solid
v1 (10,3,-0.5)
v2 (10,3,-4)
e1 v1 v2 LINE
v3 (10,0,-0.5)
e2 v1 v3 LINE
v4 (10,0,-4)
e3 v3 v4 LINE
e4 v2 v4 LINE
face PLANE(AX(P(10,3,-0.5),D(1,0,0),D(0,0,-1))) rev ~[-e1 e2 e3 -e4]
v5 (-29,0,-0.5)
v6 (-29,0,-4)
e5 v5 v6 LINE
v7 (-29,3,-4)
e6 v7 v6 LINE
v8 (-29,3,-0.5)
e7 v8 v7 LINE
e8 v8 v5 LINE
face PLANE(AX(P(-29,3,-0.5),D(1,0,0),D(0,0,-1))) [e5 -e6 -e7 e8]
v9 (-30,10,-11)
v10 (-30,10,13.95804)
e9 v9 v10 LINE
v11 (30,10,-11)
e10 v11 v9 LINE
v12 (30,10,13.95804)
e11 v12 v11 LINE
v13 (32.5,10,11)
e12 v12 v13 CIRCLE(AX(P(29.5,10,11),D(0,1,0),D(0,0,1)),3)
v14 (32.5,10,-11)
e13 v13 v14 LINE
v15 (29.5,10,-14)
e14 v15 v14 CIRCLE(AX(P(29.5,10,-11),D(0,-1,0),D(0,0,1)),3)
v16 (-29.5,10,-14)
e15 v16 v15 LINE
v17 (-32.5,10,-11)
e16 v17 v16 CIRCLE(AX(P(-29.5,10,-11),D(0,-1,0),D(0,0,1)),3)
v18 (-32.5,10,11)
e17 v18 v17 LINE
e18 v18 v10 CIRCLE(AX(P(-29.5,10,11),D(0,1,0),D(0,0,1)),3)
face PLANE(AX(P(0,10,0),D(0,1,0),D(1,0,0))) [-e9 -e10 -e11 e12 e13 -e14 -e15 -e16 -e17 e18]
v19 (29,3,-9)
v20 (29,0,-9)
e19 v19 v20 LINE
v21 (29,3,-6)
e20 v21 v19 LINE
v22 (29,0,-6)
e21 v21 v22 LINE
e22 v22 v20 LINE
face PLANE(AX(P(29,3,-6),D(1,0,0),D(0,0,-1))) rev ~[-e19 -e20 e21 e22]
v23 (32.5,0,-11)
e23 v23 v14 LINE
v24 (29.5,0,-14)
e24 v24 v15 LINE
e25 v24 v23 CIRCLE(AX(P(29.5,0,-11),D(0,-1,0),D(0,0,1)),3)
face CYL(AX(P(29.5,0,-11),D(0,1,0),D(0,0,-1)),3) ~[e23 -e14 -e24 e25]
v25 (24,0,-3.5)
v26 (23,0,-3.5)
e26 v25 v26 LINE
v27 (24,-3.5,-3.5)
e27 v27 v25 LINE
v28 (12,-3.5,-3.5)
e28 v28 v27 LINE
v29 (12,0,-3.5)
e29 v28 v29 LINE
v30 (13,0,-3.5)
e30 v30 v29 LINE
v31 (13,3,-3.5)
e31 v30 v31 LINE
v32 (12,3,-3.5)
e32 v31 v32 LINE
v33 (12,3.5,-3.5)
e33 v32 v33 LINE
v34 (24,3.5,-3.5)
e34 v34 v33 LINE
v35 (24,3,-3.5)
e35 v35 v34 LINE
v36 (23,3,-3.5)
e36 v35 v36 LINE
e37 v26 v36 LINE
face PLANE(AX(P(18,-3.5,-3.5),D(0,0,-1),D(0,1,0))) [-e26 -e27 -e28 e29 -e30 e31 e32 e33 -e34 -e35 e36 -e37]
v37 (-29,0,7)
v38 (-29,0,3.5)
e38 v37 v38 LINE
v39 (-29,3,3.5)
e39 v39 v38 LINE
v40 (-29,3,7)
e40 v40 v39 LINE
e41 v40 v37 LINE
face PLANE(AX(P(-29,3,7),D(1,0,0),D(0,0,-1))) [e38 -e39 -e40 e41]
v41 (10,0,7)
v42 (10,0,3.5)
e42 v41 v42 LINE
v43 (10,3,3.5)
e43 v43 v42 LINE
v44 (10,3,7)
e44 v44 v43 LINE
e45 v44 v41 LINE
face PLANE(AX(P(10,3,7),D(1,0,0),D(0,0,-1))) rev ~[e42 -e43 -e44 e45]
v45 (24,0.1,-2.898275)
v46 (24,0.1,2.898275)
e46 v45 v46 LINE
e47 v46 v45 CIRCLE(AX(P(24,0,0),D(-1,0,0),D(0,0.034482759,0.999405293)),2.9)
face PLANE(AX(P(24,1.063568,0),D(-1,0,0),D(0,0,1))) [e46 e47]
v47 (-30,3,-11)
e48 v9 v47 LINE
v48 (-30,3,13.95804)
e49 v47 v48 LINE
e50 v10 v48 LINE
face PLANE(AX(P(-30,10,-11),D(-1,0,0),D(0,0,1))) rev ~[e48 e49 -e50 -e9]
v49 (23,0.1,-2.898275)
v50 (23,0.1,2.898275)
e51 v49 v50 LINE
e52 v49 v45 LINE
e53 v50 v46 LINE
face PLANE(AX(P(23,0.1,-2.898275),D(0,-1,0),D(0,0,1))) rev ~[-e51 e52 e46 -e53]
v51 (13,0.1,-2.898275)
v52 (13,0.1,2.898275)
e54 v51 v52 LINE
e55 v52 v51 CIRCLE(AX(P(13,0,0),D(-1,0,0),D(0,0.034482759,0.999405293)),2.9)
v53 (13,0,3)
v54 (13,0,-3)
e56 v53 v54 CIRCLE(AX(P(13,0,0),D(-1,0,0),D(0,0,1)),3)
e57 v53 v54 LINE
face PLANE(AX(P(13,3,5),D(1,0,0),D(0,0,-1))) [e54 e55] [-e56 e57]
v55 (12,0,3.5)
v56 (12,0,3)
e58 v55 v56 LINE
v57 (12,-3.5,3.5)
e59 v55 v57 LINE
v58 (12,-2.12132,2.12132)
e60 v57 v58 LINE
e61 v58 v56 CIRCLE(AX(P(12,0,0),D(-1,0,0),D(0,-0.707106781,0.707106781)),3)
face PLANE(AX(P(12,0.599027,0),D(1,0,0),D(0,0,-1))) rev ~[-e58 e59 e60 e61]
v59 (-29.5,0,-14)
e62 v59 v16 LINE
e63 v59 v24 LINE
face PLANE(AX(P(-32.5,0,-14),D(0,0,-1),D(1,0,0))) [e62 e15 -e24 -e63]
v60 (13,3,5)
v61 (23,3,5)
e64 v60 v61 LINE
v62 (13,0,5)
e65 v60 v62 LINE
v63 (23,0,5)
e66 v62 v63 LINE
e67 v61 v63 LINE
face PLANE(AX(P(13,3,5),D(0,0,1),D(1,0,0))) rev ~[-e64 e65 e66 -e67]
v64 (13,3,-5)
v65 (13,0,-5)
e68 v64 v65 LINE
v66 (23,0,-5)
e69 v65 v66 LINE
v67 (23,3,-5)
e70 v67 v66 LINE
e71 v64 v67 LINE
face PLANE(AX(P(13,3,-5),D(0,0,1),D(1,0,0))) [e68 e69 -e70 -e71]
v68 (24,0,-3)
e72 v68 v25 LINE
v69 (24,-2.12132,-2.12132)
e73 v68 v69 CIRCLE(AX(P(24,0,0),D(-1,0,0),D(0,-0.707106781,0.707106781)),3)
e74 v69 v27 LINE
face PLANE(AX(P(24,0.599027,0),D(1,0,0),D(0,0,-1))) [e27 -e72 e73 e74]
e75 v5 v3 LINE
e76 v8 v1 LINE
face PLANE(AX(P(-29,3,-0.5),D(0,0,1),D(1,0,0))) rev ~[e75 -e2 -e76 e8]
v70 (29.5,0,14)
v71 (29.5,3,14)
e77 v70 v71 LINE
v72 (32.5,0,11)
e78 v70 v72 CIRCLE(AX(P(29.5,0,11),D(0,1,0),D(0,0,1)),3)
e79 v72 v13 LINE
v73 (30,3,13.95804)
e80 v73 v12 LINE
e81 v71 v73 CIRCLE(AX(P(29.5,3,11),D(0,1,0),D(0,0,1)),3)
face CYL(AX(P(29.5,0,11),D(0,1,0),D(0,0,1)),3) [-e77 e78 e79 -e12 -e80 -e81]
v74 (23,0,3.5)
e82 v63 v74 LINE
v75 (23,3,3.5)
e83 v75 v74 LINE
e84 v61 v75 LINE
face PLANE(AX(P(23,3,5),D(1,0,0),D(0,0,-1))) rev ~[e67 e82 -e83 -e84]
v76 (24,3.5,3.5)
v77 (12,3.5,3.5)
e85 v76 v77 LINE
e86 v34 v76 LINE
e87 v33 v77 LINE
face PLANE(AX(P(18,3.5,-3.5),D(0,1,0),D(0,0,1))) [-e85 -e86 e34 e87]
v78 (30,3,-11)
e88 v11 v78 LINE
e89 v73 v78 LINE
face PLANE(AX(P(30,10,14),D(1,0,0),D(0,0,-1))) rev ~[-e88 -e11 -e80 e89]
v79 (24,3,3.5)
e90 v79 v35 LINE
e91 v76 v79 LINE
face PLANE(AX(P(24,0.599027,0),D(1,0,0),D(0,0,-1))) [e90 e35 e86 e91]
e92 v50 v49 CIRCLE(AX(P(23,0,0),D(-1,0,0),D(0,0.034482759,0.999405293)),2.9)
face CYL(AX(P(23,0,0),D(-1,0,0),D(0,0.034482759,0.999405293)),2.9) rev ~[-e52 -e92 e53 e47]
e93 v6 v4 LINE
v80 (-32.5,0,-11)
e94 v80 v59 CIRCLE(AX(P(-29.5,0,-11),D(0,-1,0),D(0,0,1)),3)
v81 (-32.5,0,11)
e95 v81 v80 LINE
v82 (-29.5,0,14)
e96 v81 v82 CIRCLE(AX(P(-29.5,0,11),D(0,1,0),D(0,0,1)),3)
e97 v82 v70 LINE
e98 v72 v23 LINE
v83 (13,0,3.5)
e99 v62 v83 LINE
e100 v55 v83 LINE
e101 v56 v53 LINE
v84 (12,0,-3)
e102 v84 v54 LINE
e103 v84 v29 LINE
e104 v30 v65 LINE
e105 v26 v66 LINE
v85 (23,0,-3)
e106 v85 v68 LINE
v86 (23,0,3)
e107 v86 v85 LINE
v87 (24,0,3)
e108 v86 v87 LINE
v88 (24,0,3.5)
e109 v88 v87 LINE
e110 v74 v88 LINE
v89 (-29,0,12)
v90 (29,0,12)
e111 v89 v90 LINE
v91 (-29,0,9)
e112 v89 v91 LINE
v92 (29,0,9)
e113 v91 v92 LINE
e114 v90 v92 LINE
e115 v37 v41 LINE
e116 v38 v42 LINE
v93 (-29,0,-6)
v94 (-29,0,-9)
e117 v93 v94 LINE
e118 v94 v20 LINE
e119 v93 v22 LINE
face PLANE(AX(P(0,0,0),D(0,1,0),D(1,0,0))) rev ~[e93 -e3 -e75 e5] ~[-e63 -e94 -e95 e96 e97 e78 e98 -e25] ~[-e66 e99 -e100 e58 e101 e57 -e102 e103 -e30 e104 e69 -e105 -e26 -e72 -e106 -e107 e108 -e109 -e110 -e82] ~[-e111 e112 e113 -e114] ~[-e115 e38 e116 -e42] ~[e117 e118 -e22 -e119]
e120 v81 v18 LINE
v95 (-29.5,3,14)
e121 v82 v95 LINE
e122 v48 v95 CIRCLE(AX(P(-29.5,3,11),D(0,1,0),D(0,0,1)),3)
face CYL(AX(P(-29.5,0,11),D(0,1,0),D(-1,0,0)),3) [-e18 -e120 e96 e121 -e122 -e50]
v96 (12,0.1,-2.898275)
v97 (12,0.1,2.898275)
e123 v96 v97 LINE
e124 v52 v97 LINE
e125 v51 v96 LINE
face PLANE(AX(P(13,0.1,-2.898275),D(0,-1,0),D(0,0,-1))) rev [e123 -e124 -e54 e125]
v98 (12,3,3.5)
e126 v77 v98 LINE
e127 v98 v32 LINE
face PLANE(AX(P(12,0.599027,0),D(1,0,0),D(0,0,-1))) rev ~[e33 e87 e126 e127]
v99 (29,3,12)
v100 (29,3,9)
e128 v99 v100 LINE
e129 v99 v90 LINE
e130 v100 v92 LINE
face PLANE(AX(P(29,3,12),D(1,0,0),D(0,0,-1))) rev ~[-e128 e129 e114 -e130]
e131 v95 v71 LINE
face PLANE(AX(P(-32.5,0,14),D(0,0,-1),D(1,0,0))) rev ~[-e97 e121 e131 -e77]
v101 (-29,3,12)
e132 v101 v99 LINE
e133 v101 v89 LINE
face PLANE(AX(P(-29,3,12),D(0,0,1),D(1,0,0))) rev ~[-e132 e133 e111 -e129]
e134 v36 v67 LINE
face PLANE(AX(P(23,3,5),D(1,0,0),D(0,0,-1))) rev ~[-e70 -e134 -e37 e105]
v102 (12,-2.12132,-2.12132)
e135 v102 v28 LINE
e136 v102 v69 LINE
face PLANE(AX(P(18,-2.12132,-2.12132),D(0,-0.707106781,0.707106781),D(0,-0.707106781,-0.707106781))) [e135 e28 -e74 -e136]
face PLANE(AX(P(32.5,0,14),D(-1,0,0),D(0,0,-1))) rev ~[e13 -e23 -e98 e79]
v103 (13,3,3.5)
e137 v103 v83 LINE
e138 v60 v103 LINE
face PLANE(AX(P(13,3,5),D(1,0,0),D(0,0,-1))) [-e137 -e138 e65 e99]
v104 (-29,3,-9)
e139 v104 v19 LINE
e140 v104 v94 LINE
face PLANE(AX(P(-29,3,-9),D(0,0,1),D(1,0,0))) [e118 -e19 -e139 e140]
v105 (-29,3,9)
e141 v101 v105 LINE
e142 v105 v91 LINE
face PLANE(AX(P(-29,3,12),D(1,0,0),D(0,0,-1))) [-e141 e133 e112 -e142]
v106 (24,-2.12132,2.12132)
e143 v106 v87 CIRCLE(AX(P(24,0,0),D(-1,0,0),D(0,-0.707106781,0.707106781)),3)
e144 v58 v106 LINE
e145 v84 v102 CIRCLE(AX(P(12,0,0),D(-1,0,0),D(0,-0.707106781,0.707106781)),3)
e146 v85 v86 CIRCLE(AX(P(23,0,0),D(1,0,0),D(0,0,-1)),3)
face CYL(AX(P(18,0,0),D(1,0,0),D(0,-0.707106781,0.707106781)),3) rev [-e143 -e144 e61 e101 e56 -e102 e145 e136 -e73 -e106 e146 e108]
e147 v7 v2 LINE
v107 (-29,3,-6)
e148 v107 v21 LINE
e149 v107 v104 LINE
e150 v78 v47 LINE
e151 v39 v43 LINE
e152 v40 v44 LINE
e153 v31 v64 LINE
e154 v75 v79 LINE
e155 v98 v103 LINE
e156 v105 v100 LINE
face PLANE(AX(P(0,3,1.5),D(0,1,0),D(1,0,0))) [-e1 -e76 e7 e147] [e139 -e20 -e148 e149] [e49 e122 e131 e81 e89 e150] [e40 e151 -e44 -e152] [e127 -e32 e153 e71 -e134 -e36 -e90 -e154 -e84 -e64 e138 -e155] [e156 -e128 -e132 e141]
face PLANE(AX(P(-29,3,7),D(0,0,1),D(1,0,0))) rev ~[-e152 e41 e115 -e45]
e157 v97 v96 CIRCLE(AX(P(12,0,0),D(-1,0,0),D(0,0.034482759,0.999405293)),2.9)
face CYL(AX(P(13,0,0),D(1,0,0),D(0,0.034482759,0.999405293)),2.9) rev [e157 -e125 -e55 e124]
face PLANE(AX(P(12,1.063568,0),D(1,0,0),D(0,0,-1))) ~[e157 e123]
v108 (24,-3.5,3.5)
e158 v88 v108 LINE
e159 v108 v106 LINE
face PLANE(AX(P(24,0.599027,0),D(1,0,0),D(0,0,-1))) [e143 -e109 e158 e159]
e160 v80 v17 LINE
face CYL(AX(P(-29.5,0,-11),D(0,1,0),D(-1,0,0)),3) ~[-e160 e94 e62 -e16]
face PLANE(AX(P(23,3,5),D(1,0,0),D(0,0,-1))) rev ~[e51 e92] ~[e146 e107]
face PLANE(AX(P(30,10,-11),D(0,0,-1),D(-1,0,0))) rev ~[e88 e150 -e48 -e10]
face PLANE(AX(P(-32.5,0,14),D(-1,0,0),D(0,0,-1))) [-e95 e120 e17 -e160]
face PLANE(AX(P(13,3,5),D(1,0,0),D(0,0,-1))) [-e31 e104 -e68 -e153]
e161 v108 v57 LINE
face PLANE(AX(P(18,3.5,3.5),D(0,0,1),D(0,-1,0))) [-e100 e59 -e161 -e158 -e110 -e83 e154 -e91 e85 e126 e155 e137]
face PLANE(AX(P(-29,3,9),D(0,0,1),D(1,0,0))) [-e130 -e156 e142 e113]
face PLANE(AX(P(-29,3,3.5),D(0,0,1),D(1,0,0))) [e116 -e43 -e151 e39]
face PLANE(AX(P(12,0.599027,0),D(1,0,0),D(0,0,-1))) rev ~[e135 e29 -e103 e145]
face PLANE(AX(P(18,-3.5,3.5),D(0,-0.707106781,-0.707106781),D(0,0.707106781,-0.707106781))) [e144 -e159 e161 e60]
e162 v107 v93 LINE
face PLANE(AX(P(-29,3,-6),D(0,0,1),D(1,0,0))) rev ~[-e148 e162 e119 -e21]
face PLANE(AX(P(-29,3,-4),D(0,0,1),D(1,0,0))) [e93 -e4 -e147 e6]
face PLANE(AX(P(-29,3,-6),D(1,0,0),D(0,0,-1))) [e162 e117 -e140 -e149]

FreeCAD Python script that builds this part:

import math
import FreeCAD as App
import Part
import Sketcher
from FreeCAD import Vector


def edges_at(feature, points):
    """Names of the edges that pass closest to the given points."""
    edges = feature.Shape.Edges
    near = lambda p: min(range(len(edges)), key=lambda i: edges[i].distToShape(Part.Vertex(*p))[0])
    return sorted({f"Edge{near(p) + 1}" for p in points})

doc = App.newDocument("Part")
body = doc.addObject("PartDesign::Body", "Body")

# Sketch on XZ plane
sketch1 = body.newObject("Sketcher::SketchObject", "Sketch")
sketch1.AttachmentSupport = (doc.getObject("XZ_Plane"), [""])
sketch1.MapMode = "FlatFace"
sketch1.addGeometry([
    Part.LineSegment(Vector(-32.5, -14, 0), Vector(-32.5, 14, 0)),
    Part.LineSegment(Vector(-32.5, 14, 0), Vector(32.5, 14, 0)),
    Part.LineSegment(Vector(32.5, 14, 0), Vector(32.5, -14, 0)),
    Part.LineSegment(Vector(32.5, -14, 0), Vector(-32.5, -14, 0)),
], False)
sketch1.addConstraint([
    Sketcher.Constraint("Coincident", 0, 2, 1, 1),
    Sketcher.Constraint("Coincident", 1, 2, 2, 1),
    Sketcher.Constraint("Coincident", 2, 2, 3, 1),
    Sketcher.Constraint("Coincident", 3, 2, 0, 1),
    Sketcher.Constraint("Vertical", 0),
    Sketcher.Constraint("Horizontal", 1),
    Sketcher.Constraint("Vertical", 2),
    Sketcher.Constraint("Horizontal", 3),
    Sketcher.Constraint("Symmetric", 0, 2, 2, 2, -1, 1),
    Sketcher.Constraint("DistanceX", 1, 1, 1, 2, 65.0),
    Sketcher.Constraint("DistanceY", 0, 1, 0, 2, 28.0),
])
pad1 = body.newObject("PartDesign::Pad", "Pad")
pad1.Profile = sketch1
pad1.Length = 10
pad1.Reversed = True

# Sketch on XZ plane
sketch2 = body.newObject("Sketcher::SketchObject", "Sketch001")
sketch2.AttachmentSupport = (doc.getObject("XZ_Plane"), [""])
sketch2.MapMode = "FlatFace"
sketch2.AttachmentOffset = App.Placement(Vector(0, 0, -10), App.Rotation())
sketch2.addGeometry([
    Part.LineSegment(Vector(30, -11, 0), Vector(-30, -11, 0)),
    Part.LineSegment(Vector(-30, -11, 0), Vector(-30, 14, 0)),
    Part.LineSegment(Vector(-30, 14, 0), Vector(30, 14, 0)),
    Part.LineSegment(Vector(30, 14, 0), Vector(30, -11, 0)),
], False)
sketch2.addConstraint([
    Sketcher.Constraint("Coincident", 0, 2, 1, 1),
    Sketcher.Constraint("Coincident", 1, 2, 2, 1),
    Sketcher.Constraint("Coincident", 2, 2, 3, 1),
    Sketcher.Constraint("Coincident", 3, 2, 0, 1),
    Sketcher.Constraint("Horizontal", 0),
    Sketcher.Constraint("Vertical", 1),
    Sketcher.Constraint("Horizontal", 2),
    Sketcher.Constraint("Vertical", 3),
    Sketcher.Constraint("DistanceX", 0, 2, 0, 1, 60.0),
    Sketcher.Constraint("DistanceY", 1, 1, 1, 2, 25.0),
    Sketcher.Constraint("DistanceX", 0, 2, -1, 1, 30.0),
    Sketcher.Constraint("DistanceY", 0, 2, -1, 1, 11.0),
])
pocket1 = body.newObject("PartDesign::Pocket", "Pocket")
pocket1.Profile = sketch2
pocket1.Length = 7
pocket1.Reversed = True

# Sketch on XZ plane
sketch3 = body.newObject("Sketcher::SketchObject", "Sketch002")
sketch3.AttachmentSupport = (doc.getObject("XZ_Plane"), [""])
sketch3.MapMode = "FlatFace"
sketch3.AttachmentOffset = App.Placement(Vector(0, 0, -3), App.Rotation())
sketch3.addGeometry([
    Part.LineSegment(Vector(13, -5, 0), Vector(13, 5, 0)),
    Part.LineSegment(Vector(13, 5, 0), Vector(23, 5, 0)),
    Part.LineSegment(Vector(23, 5, 0), Vector(23, -5, 0)),
    Part.LineSegment(Vector(23, -5, 0), Vector(13, -5, 0)),
], False)
sketch3.addConstraint([
    Sketcher.Constraint("Coincident", 0, 2, 1, 1),
    Sketcher.Constraint("Coincident", 1, 2, 2, 1),
    Sketcher.Constraint("Coincident", 2, 2, 3, 1),
    Sketcher.Constraint("Coincident", 3, 2, 0, 1),
    Sketcher.Constraint("Vertical", 0),
    Sketcher.Constraint("Horizontal", 1),
    Sketcher.Constraint("Vertical", 2),
    Sketcher.Constraint("Horizontal", 3),
    Sketcher.Constraint("Equal", 3, 0),
    Sketcher.Constraint("DistanceX", 1, 1, 1, 2, 10.0),
    Sketcher.Constraint("DistanceX", -1, 1, 0, 2, 13.0),
    Sketcher.Constraint("DistanceY", -1, 1, 0, 2, 5.0),
])
pocket2 = body.newObject("PartDesign::Pocket", "Pocket001")
pocket2.Profile = sketch3
pocket2.Length = 7
pocket2.Reversed = True

# Sketch on YZ plane
sketch4 = body.newObject("Sketcher::SketchObject", "Sketch003")
sketch4.AttachmentSupport = (doc.getObject("YZ_Plane"), [""])
sketch4.MapMode = "FlatFace"
sketch4.AttachmentOffset = App.Placement(Vector(0, 0, 18), App.Rotation())
sketch4.addGeometry([
    Part.LineSegment(Vector(-3.5, 3.5, 0), Vector(-2.12132, 2.12132, 0)),  # 0
    Part.ArcOfCircle(Part.Circle(Vector(0, 0, 0), Vector(0, 0, 1), 3), math.radians(-135), math.radians(135)),  # 1
    Part.LineSegment(Vector(-2.12132, -2.12132, 0), Vector(-3.5, -3.5, 0)),  # 2
    Part.LineSegment(Vector(-3.5, -3.5, 0), Vector(3.5, -3.5, 0)),  # 3
    Part.LineSegment(Vector(3.5, -3.5, 0), Vector(3.5, 3.5, 0)),  # 4
    Part.LineSegment(Vector(3.5, 3.5, 0), Vector(-3.5, 3.5, 0)),  # 5
], False)
sketch4.addConstraint([
    Sketcher.Constraint("Coincident", 0, 2, 1, 2),
    Sketcher.Constraint("Coincident", 1, 1, 2, 1),
    Sketcher.Constraint("Coincident", 2, 2, 3, 1),
    Sketcher.Constraint("Coincident", 3, 2, 4, 1),
    Sketcher.Constraint("Coincident", 4, 2, 5, 1),
    Sketcher.Constraint("Coincident", 5, 2, 0, 1),
    Sketcher.Constraint("Horizontal", 3),
    Sketcher.Constraint("Vertical", 4),
    Sketcher.Constraint("Horizontal", 5),
    Sketcher.Constraint("Coincident", 1, 3, -1, 1),
    Sketcher.Constraint("Symmetric", 2, 2, 4, 2, -1, 1),
    Sketcher.Constraint("Perpendicular", 0, 2),
    Sketcher.Constraint("Vertical", 0, 2, 1, 1),
    Sketcher.Constraint("Vertical", 2, 2, 5, 2),
    Sketcher.Constraint("Equal", 5, 4),
    Sketcher.Constraint("Radius", 1, 3.0),
    Sketcher.Constraint("DistanceX", 3, 1, 3, 2, 7.0),
])
pad2 = body.newObject("PartDesign::Pad", "Pad001")
pad2.Profile = sketch4
pad2.Length = 12
pad2.Midplane = True

# Sketch on YZ plane
sketch5 = body.newObject("Sketcher::SketchObject", "Sketch004")
sketch5.AttachmentSupport = (doc.getObject("YZ_Plane"), [""])
sketch5.MapMode = "FlatFace"
sketch5.AttachmentOffset = App.Placement(Vector(0, 0, 23), App.Rotation())
sketch5.addGeometry([
    Part.LineSegment(Vector(0.1, -2.898275, 0), Vector(0.1, 2.898275, 0)),
    Part.ArcOfCircle(Part.Circle(Vector(0, 0, 0), Vector(0, 0, 1), 2.9), math.radians(-88.023892), math.radians(88.023892)),
], False)
sketch5.addConstraint([
    Sketcher.Constraint("Coincident", 0, 1, 1, 1),
    Sketcher.Constraint("Coincident", 1, 2, 0, 2),
    Sketcher.Constraint("Vertical", 0),
    Sketcher.Constraint("Coincident", 1, 3, -1, 1),
    Sketcher.Constraint("Radius", 1, 2.9),
    Sketcher.Constraint("DistanceX", -1, 1, 0, 1, 0.1),
])
pocket3 = body.newObject("PartDesign::Pocket", "Pocket002")
pocket3.Profile = sketch5
pocket3.Length = 1
pocket3.Reversed = True
doc.recompute()

datumplane = body.newObject("PartDesign::Plane", "DatumPlane")
datumplane.AttachmentSupport = (doc.getObject("YZ_Plane"), [""])
datumplane.MapMode = "FlatFace"
datumplane.AttachmentOffset = App.Placement(Vector(0, 0, 18), App.Rotation())
mirrored = body.newObject("PartDesign::Mirrored", "Mirrored")
mirrored.Originals = [pocket3]
mirrored.MirrorPlane = (datumplane, [""])
body.Tip = mirrored

# Sketch on XZ plane
sketch6 = body.newObject("Sketcher::SketchObject", "Sketch005")
sketch6.AttachmentSupport = (doc.getObject("XZ_Plane"), [""])
sketch6.MapMode = "FlatFace"
sketch6.AttachmentOffset = App.Placement(Vector(0, 0, -3), App.Rotation())
sketch6.addGeometry([
    Part.LineSegment(Vector(-29, -9, 0), Vector(-29, -6, 0)),  # 0
    Part.LineSegment(Vector(-29, -6, 0), Vector(29, -6, 0)),  # 1
    Part.LineSegment(Vector(29, -6, 0), Vector(29, -9, 0)),  # 2
    Part.LineSegment(Vector(29, -9, 0), Vector(-29, -9, 0)),  # 3
    Part.LineSegment(Vector(-29, -4, 0), Vector(-29, -0.5, 0)),  # 4
    Part.LineSegment(Vector(-29, -0.5, 0), Vector(10, -0.5, 0)),  # 5
    Part.LineSegment(Vector(10, -0.5, 0), Vector(10, -4, 0)),  # 6
    Part.LineSegment(Vector(10, -4, 0), Vector(-29, -4, 0)),  # 7
    Part.LineSegment(Vector(-29, 3.5, 0), Vector(-29, 7, 0)),  # 8
    Part.LineSegment(Vector(-29, 7, 0), Vector(10, 7, 0)),  # 9
    Part.LineSegment(Vector(10, 7, 0), Vector(10, 3.5, 0)),  # 10
    Part.LineSegment(Vector(10, 3.5, 0), Vector(-29, 3.5, 0)),  # 11
    Part.LineSegment(Vector(-29, 9, 0), Vector(-29, 12, 0)),  # 12
    Part.LineSegment(Vector(-29, 12, 0), Vector(29, 12, 0)),  # 13
    Part.LineSegment(Vector(29, 12, 0), Vector(29, 9, 0)),  # 14
    Part.LineSegment(Vector(29, 9, 0), Vector(-29, 9, 0)),  # 15
], False)
sketch6.addConstraint([
    Sketcher.Constraint("Coincident", 0, 2, 1, 1),
    Sketcher.Constraint("Coincident", 1, 2, 2, 1),
    Sketcher.Constraint("Coincident", 2, 2, 3, 1),
    Sketcher.Constraint("Coincident", 3, 2, 0, 1),
    Sketcher.Constraint("Coincident", 4, 2, 5, 1),
    Sketcher.Constraint("Coincident", 5, 2, 6, 1),
    Sketcher.Constraint("Coincident", 6, 2, 7, 1),
    Sketcher.Constraint("Coincident", 7, 2, 4, 1),
    Sketcher.Constraint("Coincident", 8, 2, 9, 1),
    Sketcher.Constraint("Coincident", 9, 2, 10, 1),
    Sketcher.Constraint("Coincident", 10, 2, 11, 1),
    Sketcher.Constraint("Coincident", 11, 2, 8, 1),
    Sketcher.Constraint("Coincident", 12, 2, 13, 1),
    Sketcher.Constraint("Coincident", 13, 2, 14, 1),
    Sketcher.Constraint("Coincident", 14, 2, 15, 1),
    Sketcher.Constraint("Coincident", 15, 2, 12, 1),
    Sketcher.Constraint("Vertical", 0),
    Sketcher.Constraint("Horizontal", 1),
    Sketcher.Constraint("Vertical", 2),
    Sketcher.Constraint("Horizontal", 3),
    Sketcher.Constraint("Vertical", 4),
    Sketcher.Constraint("Horizontal", 5),
    Sketcher.Constraint("Vertical", 6),
    Sketcher.Constraint("Horizontal", 7),
    Sketcher.Constraint("Vertical", 8),
    Sketcher.Constraint("Horizontal", 9),
    Sketcher.Constraint("Vertical", 10),
    Sketcher.Constraint("Horizontal", 11),
    Sketcher.Constraint("Vertical", 12),
    Sketcher.Constraint("Horizontal", 13),
    Sketcher.Constraint("Vertical", 14),
    Sketcher.Constraint("Horizontal", 15),
    Sketcher.Constraint("Symmetric", 3, 2, 14, 2, -1, 1),
    Sketcher.Constraint("Vertical", 3, 2, 4, 2),
    Sketcher.Constraint("Vertical", 7, 2, 8, 2),
    Sketcher.Constraint("Vertical", 6, 2, 9, 2),
    Sketcher.Constraint("Vertical", 11, 2, 12, 2),
    Sketcher.Constraint("Vertical", 2, 2, 13, 2),
    Sketcher.Constraint("Equal", 6, 8),
    Sketcher.Constraint("Equal", 2, 12),
    Sketcher.Constraint("DistanceX", 1, 1, 1, 2, 58.0),
    Sketcher.Constraint("DistanceX", 5, 1, 5, 2, 39.0),
    Sketcher.Constraint("DistanceY", 0, 1, 0, 2, 3.0),
    Sketcher.Constraint("DistanceY", 4, 1, 4, 2, 3.5),
    Sketcher.Constraint("DistanceY", 0, 2, -1, 1, 6.0),
    Sketcher.Constraint("DistanceY", 6, 2, -1, 1, 4.0),
    Sketcher.Constraint("DistanceY", -1, 1, 8, 2, 7.0),
])
pocket4 = body.newObject("PartDesign::Pocket", "Pocket003")
pocket4.Profile = sketch6
pocket4.Length = 41
pocket4.Reversed = True
doc.recompute()

fillet = body.newObject("PartDesign::Fillet", "Fillet")
fillet.Base = (pocket4, edges_at(pocket4, [
    (32.5, 5, 14),
    (-32.5, 5, 14),
    (-32.5, 5, -14),
    (32.5, 5, -14),
]))
fillet.Radius = 3

doc.recompute()
